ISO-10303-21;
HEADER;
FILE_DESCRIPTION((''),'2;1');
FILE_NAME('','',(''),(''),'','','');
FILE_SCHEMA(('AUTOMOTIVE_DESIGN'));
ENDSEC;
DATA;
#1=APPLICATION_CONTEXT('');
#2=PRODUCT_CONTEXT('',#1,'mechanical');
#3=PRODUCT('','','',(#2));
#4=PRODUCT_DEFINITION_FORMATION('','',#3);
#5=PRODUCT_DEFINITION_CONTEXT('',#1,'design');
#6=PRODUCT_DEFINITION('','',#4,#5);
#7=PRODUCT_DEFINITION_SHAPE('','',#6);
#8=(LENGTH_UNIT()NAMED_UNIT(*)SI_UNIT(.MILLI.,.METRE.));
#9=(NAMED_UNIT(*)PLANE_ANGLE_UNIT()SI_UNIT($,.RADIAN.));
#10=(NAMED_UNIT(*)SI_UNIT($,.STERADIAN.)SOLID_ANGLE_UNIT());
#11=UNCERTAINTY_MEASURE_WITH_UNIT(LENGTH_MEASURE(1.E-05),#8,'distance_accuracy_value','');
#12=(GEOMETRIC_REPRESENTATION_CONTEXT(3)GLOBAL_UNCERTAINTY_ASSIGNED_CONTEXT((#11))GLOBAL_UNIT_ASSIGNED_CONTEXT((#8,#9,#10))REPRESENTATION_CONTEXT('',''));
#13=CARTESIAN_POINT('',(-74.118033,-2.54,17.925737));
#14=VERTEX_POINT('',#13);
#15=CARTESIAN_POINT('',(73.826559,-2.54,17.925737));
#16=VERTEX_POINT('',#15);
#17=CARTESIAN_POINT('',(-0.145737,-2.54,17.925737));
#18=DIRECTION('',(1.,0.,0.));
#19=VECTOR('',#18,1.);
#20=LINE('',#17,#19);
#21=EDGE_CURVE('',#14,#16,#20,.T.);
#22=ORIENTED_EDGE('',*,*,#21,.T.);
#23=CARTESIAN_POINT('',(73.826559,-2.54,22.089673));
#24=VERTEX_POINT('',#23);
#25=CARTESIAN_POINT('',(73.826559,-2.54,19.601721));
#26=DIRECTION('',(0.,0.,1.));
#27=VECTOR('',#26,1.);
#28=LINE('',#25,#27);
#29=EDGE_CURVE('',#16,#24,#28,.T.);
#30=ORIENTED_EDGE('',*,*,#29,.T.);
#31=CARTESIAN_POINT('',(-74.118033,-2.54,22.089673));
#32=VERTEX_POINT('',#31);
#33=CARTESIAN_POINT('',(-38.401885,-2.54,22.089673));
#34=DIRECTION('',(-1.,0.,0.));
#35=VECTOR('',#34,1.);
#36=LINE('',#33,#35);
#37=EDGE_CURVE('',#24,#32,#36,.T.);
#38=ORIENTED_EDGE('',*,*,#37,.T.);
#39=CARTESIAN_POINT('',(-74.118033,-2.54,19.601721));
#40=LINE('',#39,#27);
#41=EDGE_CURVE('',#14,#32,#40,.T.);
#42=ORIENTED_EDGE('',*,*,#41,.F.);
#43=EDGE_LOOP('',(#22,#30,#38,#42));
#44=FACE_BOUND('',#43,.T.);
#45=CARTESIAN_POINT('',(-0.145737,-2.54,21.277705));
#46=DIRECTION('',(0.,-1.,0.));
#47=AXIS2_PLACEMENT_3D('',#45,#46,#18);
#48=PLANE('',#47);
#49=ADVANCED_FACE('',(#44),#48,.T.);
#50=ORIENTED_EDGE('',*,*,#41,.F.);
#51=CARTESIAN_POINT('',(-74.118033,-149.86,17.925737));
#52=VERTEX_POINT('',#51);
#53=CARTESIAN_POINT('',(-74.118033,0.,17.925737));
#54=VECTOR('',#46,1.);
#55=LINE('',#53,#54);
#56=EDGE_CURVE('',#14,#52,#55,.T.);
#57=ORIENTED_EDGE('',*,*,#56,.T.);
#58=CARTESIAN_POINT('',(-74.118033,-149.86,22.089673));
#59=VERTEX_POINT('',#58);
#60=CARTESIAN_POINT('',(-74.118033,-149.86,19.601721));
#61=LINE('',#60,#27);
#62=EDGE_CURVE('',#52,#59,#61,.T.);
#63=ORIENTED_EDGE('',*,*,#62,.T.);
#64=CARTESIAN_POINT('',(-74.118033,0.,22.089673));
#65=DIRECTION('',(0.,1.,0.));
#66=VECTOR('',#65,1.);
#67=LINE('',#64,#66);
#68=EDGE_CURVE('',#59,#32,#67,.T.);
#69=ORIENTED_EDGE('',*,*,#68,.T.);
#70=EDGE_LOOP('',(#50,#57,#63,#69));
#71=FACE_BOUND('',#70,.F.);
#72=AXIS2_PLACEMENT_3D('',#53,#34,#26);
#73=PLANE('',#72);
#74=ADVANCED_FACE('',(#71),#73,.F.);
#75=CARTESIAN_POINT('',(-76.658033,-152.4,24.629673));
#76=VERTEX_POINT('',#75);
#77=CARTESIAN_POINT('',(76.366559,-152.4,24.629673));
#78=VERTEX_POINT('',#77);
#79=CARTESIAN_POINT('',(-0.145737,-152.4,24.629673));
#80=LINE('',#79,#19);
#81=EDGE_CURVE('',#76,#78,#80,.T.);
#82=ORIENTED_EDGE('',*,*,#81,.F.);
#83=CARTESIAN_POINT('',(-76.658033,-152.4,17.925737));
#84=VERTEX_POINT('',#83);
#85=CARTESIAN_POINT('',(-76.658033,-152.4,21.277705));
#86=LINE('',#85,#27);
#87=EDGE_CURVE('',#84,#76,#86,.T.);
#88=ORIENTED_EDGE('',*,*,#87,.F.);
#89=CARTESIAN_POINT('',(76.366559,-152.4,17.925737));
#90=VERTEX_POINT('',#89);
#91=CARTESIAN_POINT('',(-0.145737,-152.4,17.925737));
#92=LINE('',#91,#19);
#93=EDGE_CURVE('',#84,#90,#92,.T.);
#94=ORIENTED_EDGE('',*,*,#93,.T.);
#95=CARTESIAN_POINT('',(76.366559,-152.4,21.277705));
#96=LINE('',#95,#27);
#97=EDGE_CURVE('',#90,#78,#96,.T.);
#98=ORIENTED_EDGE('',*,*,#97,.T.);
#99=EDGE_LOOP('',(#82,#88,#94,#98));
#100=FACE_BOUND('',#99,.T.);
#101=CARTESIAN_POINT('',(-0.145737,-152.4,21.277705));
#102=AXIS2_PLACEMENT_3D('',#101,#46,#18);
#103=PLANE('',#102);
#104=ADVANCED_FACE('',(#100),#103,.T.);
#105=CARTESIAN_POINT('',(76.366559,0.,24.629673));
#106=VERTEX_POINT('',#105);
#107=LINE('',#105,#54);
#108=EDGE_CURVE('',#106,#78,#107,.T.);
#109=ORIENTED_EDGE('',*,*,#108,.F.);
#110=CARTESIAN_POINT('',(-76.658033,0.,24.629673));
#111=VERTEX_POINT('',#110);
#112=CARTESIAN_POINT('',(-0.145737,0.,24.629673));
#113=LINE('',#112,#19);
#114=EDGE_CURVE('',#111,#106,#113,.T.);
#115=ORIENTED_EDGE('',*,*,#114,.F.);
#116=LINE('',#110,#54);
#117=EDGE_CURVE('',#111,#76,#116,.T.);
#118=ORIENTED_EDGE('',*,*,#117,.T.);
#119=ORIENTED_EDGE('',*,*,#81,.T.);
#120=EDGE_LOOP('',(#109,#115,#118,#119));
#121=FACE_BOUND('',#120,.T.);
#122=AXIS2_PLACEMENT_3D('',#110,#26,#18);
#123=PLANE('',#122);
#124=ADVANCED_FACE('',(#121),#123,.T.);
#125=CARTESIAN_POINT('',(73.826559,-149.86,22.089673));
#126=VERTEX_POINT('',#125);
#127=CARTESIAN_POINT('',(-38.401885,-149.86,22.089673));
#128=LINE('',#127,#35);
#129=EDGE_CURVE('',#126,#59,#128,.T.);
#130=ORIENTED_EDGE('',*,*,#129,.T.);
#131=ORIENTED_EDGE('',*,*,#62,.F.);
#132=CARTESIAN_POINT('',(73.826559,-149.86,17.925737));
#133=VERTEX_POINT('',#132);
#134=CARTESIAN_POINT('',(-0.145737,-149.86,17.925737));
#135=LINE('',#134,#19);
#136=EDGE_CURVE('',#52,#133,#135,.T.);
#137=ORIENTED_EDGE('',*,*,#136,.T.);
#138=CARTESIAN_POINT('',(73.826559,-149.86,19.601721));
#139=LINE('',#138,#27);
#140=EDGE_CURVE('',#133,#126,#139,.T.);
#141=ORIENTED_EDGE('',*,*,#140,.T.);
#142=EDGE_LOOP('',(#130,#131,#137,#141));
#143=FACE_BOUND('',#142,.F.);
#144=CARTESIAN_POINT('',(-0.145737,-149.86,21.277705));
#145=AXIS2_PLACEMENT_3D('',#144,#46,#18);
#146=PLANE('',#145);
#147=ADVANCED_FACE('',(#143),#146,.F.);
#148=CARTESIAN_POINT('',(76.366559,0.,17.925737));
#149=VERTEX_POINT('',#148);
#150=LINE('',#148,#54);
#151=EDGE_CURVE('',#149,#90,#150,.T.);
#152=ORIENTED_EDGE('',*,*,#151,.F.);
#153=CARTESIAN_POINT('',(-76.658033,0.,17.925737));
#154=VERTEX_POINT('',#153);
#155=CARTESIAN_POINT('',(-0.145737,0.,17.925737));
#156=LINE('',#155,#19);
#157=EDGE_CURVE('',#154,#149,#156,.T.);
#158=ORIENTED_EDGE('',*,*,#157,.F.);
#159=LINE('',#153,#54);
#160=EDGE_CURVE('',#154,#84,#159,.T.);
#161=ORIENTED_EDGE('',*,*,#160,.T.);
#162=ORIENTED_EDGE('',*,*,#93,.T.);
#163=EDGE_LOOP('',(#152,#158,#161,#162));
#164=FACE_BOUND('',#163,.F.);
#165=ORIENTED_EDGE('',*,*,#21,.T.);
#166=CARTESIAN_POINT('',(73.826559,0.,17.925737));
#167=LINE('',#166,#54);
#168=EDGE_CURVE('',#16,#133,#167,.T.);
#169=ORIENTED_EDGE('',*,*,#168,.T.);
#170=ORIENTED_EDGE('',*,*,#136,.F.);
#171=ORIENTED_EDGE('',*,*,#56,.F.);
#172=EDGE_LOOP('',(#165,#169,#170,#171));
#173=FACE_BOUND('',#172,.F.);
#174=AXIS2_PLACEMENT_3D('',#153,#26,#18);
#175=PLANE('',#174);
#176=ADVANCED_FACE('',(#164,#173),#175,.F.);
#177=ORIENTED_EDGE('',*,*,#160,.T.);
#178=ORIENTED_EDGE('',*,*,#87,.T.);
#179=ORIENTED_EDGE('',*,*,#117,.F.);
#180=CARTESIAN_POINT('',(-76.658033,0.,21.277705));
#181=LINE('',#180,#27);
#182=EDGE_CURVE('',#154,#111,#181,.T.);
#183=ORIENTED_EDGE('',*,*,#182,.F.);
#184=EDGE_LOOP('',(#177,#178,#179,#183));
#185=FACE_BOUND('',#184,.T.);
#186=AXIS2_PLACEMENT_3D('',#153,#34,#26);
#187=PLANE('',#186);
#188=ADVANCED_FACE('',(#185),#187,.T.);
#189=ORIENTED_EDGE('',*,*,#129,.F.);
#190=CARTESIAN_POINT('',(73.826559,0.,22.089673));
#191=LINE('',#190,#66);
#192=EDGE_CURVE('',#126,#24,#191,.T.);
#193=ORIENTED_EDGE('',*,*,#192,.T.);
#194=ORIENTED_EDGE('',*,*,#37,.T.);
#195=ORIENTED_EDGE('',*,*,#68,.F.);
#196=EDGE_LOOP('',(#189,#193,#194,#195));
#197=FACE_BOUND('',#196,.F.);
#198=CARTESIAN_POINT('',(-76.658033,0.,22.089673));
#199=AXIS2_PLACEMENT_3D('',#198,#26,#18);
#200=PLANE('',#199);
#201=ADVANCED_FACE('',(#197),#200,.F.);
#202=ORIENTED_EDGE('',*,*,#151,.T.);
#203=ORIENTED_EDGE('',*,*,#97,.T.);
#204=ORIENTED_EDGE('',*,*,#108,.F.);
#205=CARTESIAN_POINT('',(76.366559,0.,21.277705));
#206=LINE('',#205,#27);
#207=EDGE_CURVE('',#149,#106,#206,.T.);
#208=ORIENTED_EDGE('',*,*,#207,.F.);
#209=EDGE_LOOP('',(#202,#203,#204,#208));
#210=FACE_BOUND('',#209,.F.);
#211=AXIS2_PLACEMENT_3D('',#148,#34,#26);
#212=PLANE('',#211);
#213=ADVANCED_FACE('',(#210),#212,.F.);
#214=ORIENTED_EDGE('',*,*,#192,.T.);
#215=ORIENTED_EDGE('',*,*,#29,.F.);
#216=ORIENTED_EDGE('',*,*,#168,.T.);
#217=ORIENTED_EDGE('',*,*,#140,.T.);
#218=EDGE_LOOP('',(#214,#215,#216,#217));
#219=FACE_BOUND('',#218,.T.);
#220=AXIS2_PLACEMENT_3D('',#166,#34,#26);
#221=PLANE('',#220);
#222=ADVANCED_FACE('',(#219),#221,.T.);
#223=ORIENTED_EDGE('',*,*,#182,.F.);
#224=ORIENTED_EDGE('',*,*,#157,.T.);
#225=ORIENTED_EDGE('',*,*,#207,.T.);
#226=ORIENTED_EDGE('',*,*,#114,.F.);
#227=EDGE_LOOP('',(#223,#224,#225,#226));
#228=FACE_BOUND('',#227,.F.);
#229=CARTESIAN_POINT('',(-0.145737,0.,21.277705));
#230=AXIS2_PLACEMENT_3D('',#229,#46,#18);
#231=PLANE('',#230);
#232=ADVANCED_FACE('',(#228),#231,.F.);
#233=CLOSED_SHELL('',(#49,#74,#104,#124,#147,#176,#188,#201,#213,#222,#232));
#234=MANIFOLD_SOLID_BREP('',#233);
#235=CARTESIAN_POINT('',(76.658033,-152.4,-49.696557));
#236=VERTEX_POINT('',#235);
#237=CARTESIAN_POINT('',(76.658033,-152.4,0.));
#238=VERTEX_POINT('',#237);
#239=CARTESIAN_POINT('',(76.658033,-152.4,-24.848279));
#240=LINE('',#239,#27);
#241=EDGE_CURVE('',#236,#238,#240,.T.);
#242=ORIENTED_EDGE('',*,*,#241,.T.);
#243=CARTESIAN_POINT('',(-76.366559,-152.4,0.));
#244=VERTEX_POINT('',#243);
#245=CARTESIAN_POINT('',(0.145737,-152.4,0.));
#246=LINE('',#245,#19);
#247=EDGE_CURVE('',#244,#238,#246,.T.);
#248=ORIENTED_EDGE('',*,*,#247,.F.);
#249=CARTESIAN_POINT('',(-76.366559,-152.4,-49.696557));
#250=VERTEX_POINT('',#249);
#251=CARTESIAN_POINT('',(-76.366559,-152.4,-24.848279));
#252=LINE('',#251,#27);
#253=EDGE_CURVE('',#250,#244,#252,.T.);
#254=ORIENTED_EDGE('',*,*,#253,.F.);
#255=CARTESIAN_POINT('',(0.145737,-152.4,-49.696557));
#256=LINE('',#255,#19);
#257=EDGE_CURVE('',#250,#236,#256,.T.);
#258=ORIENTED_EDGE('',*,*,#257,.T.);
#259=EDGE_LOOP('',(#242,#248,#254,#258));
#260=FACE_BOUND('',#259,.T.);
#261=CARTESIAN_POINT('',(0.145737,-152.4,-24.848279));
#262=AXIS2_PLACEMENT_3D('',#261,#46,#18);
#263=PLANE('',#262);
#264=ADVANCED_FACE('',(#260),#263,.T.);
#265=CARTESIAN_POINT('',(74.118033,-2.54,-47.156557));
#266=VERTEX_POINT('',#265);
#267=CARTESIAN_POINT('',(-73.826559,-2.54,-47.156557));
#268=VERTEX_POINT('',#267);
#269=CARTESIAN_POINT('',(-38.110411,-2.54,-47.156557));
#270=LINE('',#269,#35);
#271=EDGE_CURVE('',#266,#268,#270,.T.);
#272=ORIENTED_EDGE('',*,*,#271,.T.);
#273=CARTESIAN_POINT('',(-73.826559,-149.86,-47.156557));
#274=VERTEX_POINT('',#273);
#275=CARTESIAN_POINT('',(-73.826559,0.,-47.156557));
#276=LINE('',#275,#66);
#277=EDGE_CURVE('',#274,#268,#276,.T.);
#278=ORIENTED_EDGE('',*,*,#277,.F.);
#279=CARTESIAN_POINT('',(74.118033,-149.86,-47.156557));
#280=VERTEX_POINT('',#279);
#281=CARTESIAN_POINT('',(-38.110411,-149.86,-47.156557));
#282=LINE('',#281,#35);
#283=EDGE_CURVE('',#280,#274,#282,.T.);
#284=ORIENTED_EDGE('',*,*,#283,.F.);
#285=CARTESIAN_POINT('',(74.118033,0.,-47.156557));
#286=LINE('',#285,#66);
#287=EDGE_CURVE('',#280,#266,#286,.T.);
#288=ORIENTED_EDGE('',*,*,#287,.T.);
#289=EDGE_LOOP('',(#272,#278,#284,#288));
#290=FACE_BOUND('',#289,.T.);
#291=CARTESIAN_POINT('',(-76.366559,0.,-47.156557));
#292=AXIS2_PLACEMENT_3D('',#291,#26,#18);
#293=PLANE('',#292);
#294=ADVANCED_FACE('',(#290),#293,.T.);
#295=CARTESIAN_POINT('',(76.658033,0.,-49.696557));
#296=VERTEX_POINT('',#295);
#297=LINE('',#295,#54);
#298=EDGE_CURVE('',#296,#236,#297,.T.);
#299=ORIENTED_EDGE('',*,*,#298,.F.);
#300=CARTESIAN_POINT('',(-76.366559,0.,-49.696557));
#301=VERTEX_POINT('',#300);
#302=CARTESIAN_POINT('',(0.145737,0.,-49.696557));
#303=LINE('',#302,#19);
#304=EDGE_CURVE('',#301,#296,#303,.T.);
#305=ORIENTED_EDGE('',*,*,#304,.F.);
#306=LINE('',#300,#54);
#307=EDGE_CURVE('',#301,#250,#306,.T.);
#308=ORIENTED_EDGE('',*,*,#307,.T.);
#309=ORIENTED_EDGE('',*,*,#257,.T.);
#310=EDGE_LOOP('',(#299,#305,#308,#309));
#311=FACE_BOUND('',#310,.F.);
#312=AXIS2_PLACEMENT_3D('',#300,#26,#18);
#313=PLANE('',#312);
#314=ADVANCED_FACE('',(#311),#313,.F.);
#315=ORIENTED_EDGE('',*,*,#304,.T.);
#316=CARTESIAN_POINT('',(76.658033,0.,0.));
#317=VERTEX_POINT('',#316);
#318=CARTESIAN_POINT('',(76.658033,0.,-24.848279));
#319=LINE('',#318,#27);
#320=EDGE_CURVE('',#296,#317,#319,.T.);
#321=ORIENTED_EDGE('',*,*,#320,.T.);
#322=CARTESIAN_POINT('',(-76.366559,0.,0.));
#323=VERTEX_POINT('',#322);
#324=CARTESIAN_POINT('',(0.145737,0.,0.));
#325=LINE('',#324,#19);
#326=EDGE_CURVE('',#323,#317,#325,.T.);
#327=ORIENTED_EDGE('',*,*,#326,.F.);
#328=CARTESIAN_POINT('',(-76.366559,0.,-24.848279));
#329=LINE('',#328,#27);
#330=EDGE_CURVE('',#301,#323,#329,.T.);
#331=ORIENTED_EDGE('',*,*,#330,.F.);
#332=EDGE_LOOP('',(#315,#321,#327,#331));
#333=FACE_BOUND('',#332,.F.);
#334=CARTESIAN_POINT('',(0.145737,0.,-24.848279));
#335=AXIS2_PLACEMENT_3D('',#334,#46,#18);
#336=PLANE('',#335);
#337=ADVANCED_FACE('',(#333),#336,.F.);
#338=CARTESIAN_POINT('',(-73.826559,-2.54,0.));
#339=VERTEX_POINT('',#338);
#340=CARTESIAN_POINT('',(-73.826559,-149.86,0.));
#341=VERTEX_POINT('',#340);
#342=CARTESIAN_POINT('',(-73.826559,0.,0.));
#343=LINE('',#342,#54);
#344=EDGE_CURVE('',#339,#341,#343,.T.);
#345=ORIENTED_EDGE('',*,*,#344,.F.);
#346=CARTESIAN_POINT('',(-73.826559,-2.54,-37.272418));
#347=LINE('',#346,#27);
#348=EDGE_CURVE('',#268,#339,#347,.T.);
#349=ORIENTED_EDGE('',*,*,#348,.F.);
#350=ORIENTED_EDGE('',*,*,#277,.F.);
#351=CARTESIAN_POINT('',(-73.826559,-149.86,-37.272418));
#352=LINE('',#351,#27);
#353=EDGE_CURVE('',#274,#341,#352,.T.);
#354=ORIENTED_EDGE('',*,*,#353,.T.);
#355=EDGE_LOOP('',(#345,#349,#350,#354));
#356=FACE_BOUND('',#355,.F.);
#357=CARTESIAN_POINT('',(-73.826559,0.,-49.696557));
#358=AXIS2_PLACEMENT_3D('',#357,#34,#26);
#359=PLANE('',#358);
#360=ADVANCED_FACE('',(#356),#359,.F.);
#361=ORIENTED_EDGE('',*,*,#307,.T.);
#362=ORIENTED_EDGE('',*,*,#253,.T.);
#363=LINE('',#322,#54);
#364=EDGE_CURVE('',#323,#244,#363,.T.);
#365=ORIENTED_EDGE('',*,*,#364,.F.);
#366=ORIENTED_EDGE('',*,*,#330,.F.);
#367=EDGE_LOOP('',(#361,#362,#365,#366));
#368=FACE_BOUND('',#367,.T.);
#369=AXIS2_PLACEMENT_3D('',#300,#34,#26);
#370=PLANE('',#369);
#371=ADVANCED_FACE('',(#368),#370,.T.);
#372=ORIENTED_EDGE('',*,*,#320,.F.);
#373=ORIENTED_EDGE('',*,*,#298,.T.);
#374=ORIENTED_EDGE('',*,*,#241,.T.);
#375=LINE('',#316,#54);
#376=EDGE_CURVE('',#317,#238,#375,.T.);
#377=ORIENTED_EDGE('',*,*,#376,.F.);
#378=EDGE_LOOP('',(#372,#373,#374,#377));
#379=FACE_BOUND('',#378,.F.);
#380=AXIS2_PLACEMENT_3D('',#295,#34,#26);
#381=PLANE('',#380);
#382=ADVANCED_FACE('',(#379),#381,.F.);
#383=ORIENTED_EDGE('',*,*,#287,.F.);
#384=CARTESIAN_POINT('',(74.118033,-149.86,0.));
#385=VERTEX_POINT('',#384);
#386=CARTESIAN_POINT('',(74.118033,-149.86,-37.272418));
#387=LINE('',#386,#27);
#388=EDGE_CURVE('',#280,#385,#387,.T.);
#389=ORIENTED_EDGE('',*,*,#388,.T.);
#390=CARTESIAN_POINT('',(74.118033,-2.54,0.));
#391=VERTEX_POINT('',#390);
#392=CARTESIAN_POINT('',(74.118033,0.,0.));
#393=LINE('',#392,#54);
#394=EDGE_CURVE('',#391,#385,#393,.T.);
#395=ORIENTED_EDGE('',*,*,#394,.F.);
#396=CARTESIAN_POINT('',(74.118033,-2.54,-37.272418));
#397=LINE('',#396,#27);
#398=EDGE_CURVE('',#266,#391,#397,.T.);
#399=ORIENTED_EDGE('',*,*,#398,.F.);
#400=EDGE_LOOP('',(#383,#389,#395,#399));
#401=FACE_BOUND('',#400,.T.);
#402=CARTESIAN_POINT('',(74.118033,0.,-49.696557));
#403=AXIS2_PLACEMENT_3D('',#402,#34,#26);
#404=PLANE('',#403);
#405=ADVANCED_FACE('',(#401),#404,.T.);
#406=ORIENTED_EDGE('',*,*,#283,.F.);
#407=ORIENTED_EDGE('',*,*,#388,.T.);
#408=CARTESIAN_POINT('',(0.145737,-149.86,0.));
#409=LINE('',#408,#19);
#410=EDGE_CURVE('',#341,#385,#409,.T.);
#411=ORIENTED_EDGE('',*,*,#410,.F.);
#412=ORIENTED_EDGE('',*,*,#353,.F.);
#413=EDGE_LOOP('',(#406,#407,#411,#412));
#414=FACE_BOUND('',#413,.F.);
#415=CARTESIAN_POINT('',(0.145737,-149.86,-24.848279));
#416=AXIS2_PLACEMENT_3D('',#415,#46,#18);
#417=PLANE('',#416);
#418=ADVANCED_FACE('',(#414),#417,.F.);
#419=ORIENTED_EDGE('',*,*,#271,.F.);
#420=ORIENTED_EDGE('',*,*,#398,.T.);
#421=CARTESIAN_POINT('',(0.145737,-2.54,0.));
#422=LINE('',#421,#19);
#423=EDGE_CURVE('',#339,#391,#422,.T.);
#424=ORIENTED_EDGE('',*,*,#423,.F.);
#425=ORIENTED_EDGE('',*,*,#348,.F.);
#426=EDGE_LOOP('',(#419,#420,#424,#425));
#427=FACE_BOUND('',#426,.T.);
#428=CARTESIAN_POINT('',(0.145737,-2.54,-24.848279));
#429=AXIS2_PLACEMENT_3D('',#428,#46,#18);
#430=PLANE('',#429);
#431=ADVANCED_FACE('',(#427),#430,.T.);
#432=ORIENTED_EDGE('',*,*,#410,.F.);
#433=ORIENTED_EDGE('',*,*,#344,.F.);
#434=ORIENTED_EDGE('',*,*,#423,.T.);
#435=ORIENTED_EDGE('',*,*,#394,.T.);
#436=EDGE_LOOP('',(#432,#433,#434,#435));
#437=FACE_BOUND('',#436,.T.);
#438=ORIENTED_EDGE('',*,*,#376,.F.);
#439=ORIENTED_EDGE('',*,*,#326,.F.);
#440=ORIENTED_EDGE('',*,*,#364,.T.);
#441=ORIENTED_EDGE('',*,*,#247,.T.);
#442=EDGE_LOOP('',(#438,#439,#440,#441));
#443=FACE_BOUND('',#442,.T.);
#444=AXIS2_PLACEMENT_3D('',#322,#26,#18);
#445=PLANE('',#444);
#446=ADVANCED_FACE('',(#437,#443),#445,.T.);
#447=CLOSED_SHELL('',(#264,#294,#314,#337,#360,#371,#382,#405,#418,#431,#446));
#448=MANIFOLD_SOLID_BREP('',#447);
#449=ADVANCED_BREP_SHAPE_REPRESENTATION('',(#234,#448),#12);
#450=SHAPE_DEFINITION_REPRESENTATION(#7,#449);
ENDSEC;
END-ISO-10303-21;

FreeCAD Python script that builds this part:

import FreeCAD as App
import Part
import Sketcher
from FreeCAD import Vector


def faces_at(feature, points):
    """Names of the faces that lie closest to the given points."""
    faces = feature.Shape.Faces
    near = lambda p: min(range(len(faces)), key=lambda i: faces[i].distToShape(Part.Vertex(*p))[0])
    return sorted({f"Face{near(p) + 1}" for p in points})


def add_polygon(sketch, points):
    """Adds a closed chain of lines whose ends are joined by coincident constraints."""
    first, n = sketch.GeometryCount, len(points)
    for a, b in zip(points, points[1:] + points[:1]):
        sketch.addGeometry(Part.LineSegment(App.Vector(*a, 0), App.Vector(*b, 0)), False)
    for i in range(n):
        sketch.addConstraint(Sketcher.Constraint("Coincident", first + i, 2, first + (i + 1) % n, 1))

doc = App.newDocument("Part")
params = doc.addObject("Spreadsheet::Sheet", "Params")
for row, (alias, value) in enumerate([
    ("pad1_length", "6 in"),
    ("thickness_wall", "0.1 in"),
    ("pad2_length", "6 in"),
    ("thickness2_wall", "0.1 in"),
], start=1):
    params.set(f"A{row}", alias)
    params.set(f"B{row}", "=" + value)
    params.setAlias(f"B{row}", alias)

body = doc.addObject("PartDesign::Body", "Body")

# Sketch on XZ plane
sketch1 = body.newObject("Sketcher::SketchObject", "Sketch")
sketch1.AttachmentSupport = (doc.getObject("XZ_Plane"), [""])
sketch1.MapMode = "FlatFace"
add_polygon(sketch1, [(-76.658033, 24.629673), (-76.658033, 17.925737), (76.366559, 17.925737), (76.366559, 24.629673)])  # lines 0-3
sketch1.addConstraint(Sketcher.Constraint("Vertical", 0))
sketch1.addConstraint(Sketcher.Constraint("Horizontal", 1))
sketch1.addConstraint(Sketcher.Constraint("Vertical", 2))
sketch1.addConstraint(Sketcher.Constraint("Horizontal", 3))
sketch1.addConstraint(Sketcher.Constraint("DistanceX", 1, 1, 1, 2, 153.024592))
sketch1.addConstraint(Sketcher.Constraint("DistanceY", 0, 2, 0, 1, 6.703936))
sketch1.addConstraint(Sketcher.Constraint("DistanceX", -1, 1, 1, 2, 76.366559))
sketch1.addConstraint(Sketcher.Constraint("DistanceY", -1, 1, 0, 2, 17.925737))
pad1 = body.newObject("PartDesign::Pad", "Pad")
pad1.Profile = sketch1
pad1.setExpression("Length", "Params.pad1_length")
doc.recompute()

thickness = body.newObject("PartDesign::Thickness", "Thickness")
thickness.Base = (pad1, faces_at(pad1, [(-0.146, -76.2, 17.926)]))
thickness.setExpression("Value", "Params.thickness_wall")
thickness.Reversed = True
thickness.Join = "Arc"
body2 = doc.addObject("PartDesign::Body", "Body001")

# Sketch on XZ plane
sketch2 = body2.newObject("Sketcher::SketchObject", "Sketch001")
sketch2.AttachmentSupport = (doc.getObject("XZ_Plane001"), [""])
sketch2.MapMode = "FlatFace"
add_polygon(sketch2, [(-76.366559, 0), (-76.366559, -49.696557), (76.658033, -49.696557), (76.658033, 0)])  # lines 0-3
sketch2.addConstraint(Sketcher.Constraint("Vertical", 0))
sketch2.addConstraint(Sketcher.Constraint("Horizontal", 1))
sketch2.addConstraint(Sketcher.Constraint("Vertical", 2))
sketch2.addConstraint(Sketcher.Constraint("Horizontal", 3))
sketch2.addConstraint(Sketcher.Constraint("PointOnObject", 2, 2, -1))
sketch2.addConstraint(Sketcher.Constraint("DistanceX", 1, 1, 1, 2, 153.024592))
sketch2.addConstraint(Sketcher.Constraint("DistanceY", 0, 2, 0, 1, 49.696557))
sketch2.addConstraint(Sketcher.Constraint("DistanceX", 0, 2, -1, 1, 76.366559))
pad2 = body2.newObject("PartDesign::Pad", "Pad001")
pad2.Profile = sketch2
pad2.setExpression("Length", "Params.pad2_length")
doc.recompute()

thickness2 = body2.newObject("PartDesign::Thickness", "Thickness001")
thickness2.Base = (pad2, faces_at(pad2, [(0.146, -76.2, 0)]))
thickness2.setExpression("Value", "Params.thickness2_wall")
thickness2.Reversed = True
thickness2.Join = "Arc"

doc.recompute()
